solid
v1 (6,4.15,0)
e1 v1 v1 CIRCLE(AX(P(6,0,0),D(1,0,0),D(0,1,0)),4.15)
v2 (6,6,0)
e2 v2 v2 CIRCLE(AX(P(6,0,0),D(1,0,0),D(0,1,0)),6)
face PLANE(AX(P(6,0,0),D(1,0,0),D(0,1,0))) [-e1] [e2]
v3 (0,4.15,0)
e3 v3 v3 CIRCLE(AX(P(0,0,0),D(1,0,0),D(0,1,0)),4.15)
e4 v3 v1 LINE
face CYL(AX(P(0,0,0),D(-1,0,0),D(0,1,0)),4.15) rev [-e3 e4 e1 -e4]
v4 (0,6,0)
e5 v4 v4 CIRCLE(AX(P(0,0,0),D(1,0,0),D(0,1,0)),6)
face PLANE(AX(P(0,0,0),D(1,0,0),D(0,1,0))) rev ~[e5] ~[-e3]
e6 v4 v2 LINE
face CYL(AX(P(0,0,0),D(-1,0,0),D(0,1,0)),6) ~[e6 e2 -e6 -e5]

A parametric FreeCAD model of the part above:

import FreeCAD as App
import Part
import Sketcher

V = App.Vector
Q = App.Units.Quantity

doc = App.newDocument("Part")
body = doc.addObject("PartDesign::Body", "Body")

# Sketch on YZ plane
sketch1 = body.newObject("Sketcher::SketchObject", "Sketch")
sketch1.AttachmentSupport = (doc.getObject("YZ_Plane"), [""])
sketch1.MapMode = "FlatFace"
sketch1.addGeometry(Part.Circle(V(0, 0, 0), V(0, 0, 1), 6), False)
sketch1.addGeometry(Part.Circle(V(0, 0, 0), V(0, 0, 1), 4.15), False)
sketch1.addConstraint(Sketcher.Constraint("Coincident", 0, 3, -1, 1))
sketch1.addConstraint(Sketcher.Constraint("Coincident", 1, 3, -1, 1))
sketch1.addConstraint(Sketcher.Constraint("Diameter", 0, Q("12 mm")))
sketch1.addConstraint(Sketcher.Constraint("Diameter", 1, Q("8.3 mm")))
pad1 = body.newObject("PartDesign::Pad", "Pad")
pad1.Profile = sketch1
pad1.Length = 6

doc.recompute()
